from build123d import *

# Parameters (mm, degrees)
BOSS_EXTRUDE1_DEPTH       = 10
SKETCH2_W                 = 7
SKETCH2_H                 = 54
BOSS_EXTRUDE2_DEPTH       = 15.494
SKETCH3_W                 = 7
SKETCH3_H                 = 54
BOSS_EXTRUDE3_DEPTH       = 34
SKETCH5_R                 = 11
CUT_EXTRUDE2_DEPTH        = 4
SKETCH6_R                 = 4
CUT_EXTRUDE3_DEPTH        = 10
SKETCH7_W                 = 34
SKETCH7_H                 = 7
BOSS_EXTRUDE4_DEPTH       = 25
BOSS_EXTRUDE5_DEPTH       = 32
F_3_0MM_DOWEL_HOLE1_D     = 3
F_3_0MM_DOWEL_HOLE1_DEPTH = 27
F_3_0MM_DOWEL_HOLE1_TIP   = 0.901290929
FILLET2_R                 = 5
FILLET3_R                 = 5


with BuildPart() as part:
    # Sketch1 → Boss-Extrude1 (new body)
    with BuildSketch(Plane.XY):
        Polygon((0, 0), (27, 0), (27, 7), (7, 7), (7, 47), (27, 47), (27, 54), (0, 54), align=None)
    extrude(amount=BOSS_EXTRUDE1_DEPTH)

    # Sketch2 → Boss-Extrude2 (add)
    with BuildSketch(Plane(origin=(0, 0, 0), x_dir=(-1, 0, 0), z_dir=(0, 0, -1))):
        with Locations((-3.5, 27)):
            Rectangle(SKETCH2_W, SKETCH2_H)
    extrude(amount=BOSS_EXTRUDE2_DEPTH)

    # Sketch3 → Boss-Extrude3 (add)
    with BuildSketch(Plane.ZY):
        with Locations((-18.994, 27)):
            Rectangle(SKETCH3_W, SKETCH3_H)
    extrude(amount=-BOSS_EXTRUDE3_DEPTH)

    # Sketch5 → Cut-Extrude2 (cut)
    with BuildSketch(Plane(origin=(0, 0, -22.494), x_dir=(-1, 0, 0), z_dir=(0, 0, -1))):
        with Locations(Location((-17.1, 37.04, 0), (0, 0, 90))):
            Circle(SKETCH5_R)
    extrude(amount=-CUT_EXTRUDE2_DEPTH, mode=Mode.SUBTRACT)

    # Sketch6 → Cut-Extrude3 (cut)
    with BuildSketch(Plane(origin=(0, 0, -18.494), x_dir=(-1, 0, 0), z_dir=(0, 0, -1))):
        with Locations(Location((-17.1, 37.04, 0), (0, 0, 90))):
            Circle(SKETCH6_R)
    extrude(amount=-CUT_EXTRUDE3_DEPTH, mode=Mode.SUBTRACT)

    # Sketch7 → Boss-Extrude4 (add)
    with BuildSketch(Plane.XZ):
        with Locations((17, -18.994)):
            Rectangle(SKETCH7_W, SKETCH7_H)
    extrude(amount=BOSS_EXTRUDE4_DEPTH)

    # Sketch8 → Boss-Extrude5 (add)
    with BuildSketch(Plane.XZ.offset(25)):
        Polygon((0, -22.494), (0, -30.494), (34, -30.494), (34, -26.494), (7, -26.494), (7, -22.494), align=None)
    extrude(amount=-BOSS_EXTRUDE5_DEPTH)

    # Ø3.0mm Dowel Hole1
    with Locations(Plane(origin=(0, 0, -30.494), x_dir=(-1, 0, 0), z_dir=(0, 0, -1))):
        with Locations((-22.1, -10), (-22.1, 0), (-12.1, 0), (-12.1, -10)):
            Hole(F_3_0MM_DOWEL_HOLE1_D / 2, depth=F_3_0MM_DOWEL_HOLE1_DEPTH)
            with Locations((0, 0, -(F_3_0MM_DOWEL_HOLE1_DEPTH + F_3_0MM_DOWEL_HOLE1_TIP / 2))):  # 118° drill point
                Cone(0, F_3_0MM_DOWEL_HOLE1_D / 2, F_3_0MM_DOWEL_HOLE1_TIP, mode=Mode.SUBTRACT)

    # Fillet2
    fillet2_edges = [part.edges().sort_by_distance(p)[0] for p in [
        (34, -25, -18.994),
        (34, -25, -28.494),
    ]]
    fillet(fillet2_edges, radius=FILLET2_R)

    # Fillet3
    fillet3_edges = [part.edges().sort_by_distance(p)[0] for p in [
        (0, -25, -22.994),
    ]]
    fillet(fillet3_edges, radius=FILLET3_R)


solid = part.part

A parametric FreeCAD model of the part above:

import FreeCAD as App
import Part
import Sketcher

V = App.Vector


def edges_at(feature, points):
    """Names of the edges that pass closest to the given points."""
    edges = feature.Shape.Edges
    near = lambda p: min(range(len(edges)), key=lambda i: edges[i].distToShape(Part.Vertex(*p))[0])
    return sorted({f"Edge{near(p) + 1}" for p in points})


def add_polygon(sketch, points):
    """Adds a closed chain of lines whose ends are joined by coincident constraints."""
    first, n = sketch.GeometryCount, len(points)
    for a, b in zip(points, points[1:] + points[:1]):
        sketch.addGeometry(Part.LineSegment(App.Vector(*a, 0), App.Vector(*b, 0)), False)
    for i in range(n):
        sketch.addConstraint(Sketcher.Constraint("Coincident", first + i, 2, first + (i + 1) % n, 1))

doc = App.newDocument("Part")
body = doc.addObject("PartDesign::Body", "Body")

# Sketch on XY plane
sketch1 = body.newObject("Sketcher::SketchObject", "Sketch")
sketch1.AttachmentSupport = (doc.getObject("XY_Plane"), [""])
sketch1.MapMode = "FlatFace"
add_polygon(sketch1, [(0, 0), (27, 0), (27, 7), (7, 7), (7, 47), (27, 47), (27, 54), (0, 54)])  # lines 0-7
sketch1.addConstraint([
    Sketcher.Constraint("Horizontal", 0),
    Sketcher.Constraint("Vertical", 1),
    Sketcher.Constraint("Horizontal", 2),
    Sketcher.Constraint("Vertical", 3),
    Sketcher.Constraint("Horizontal", 4),
    Sketcher.Constraint("Vertical", 5),
    Sketcher.Constraint("Horizontal", 6),
    Sketcher.Constraint("Vertical", 7),
    Sketcher.Constraint("Coincident", 7, 2, -1, 1),
    Sketcher.Constraint("Vertical", 1, 2, 4, 2),
    Sketcher.Constraint("Equal", 1, 5),
    Sketcher.Constraint("DistanceX", 0, 1, 0, 2, 27.0),
    Sketcher.Constraint("DistanceX", 2, 2, 2, 1, 20.0),
    Sketcher.Constraint("DistanceY", 1, 1, 1, 2, 7.0),
    Sketcher.Constraint("DistanceY", 3, 1, 3, 2, 40.0),
])
pad1 = body.newObject("PartDesign::Pad", "Pad")
pad1.Profile = sketch1
pad1.Length = 10

# Sketch on XY plane
sketch2 = body.newObject("Sketcher::SketchObject", "Sketch001")
sketch2.AttachmentSupport = (doc.getObject("XY_Plane"), [""])
sketch2.MapMode = "FlatFace"
add_polygon(sketch2, [(7, 54), (7, 0), (0, 0), (0, 54)])  # lines 0-3
sketch2.addConstraint([
    Sketcher.Constraint("Vertical", 0),
    Sketcher.Constraint("Horizontal", 1),
    Sketcher.Constraint("Vertical", 2),
    Sketcher.Constraint("Horizontal", 3),
    Sketcher.Constraint("Coincident", 1, 2, -1, 1),
    Sketcher.Constraint("DistanceX", 1, 2, 1, 1, 7.0),
    Sketcher.Constraint("DistanceY", 0, 2, 0, 1, 54.0),
])
pad2 = body.newObject("PartDesign::Pad", "Pad001")
pad2.Profile = sketch2
pad2.Length = 15.494
pad2.Reversed = True

# Sketch on YZ plane
sketch3 = body.newObject("Sketcher::SketchObject", "Sketch002")
sketch3.AttachmentSupport = (doc.getObject("YZ_Plane"), [""])
sketch3.MapMode = "FlatFace"
add_polygon(sketch3, [(54, -22.494), (0, -22.494), (0, -15.494), (54, -15.494)])  # lines 0-3
sketch3.addConstraint([
    Sketcher.Constraint("Horizontal", 0),
    Sketcher.Constraint("Vertical", 1),
    Sketcher.Constraint("Horizontal", 2),
    Sketcher.Constraint("Vertical", 3),
    Sketcher.Constraint("PointOnObject", 0, 2, -2),
    Sketcher.Constraint("DistanceX", 0, 2, 0, 1, 54.0),
    Sketcher.Constraint("DistanceY", 1, 1, 1, 2, 7.0),
    Sketcher.Constraint("DistanceY", 0, 2, -1, 1, 22.494),
])
pad3 = body.newObject("PartDesign::Pad", "Pad002")
pad3.Profile = sketch3
pad3.Length = 34

# Sketch on XY plane
sketch4 = body.newObject("Sketcher::SketchObject", "Sketch003")
sketch4.AttachmentSupport = (doc.getObject("XY_Plane"), [""])
sketch4.MapMode = "FlatFace"
sketch4.AttachmentOffset = App.Placement(V(0, 0, -22.494), App.Rotation())
sketch4.addGeometry(Part.Circle(V(17.1, 37.04, 0), V(0, 0, 1), 11), False)
sketch4.addConstraint([
    Sketcher.Constraint("Diameter", 0, 22.0),
    Sketcher.Constraint("DistanceX", -1, 1, 0, 3, 17.1),
    Sketcher.Constraint("DistanceY", -1, 1, 0, 3, 37.04),
])
pocket1 = body.newObject("PartDesign::Pocket", "Pocket")
pocket1.Profile = sketch4
pocket1.Length = 4
pocket1.Reversed = True

# Sketch on XY plane
sketch5 = body.newObject("Sketcher::SketchObject", "Sketch004")
sketch5.AttachmentSupport = (doc.getObject("XY_Plane"), [""])
sketch5.MapMode = "FlatFace"
sketch5.AttachmentOffset = App.Placement(V(0, 0, -18.494), App.Rotation())
sketch5.addGeometry(Part.Circle(V(17.1, 37.04, 0), V(0, 0, 1), 4), False)
sketch5.addConstraint([
    Sketcher.Constraint("Diameter", 0, 8.0),
    Sketcher.Constraint("DistanceX", -1, 1, 0, 3, 17.1),
    Sketcher.Constraint("DistanceY", -1, 1, 0, 3, 37.04),
])
pocket2 = body.newObject("PartDesign::Pocket", "Pocket001")
pocket2.Profile = sketch5
pocket2.Length = 10
pocket2.Reversed = True

# Sketch on XZ plane
sketch6 = body.newObject("Sketcher::SketchObject", "Sketch005")
sketch6.AttachmentSupport = (doc.getObject("XZ_Plane"), [""])
sketch6.MapMode = "FlatFace"
add_polygon(sketch6, [(0, -15.494), (0, -22.494), (34, -22.494), (34, -15.494)])  # lines 0-3
sketch6.addConstraint([
    Sketcher.Constraint("Vertical", 0),
    Sketcher.Constraint("Horizontal", 1),
    Sketcher.Constraint("Vertical", 2),
    Sketcher.Constraint("Horizontal", 3),
    Sketcher.Constraint("PointOnObject", 0, 2, -2),
    Sketcher.Constraint("DistanceX", 1, 1, 1, 2, 34.0),
    Sketcher.Constraint("DistanceY", 0, 2, 0, 1, 7.0),
    Sketcher.Constraint("DistanceY", 0, 2, -1, 1, 22.494),
])
pad4 = body.newObject("PartDesign::Pad", "Pad003")
pad4.Profile = sketch6
pad4.Length = 25

# Sketch on XZ plane
sketch7 = body.newObject("Sketcher::SketchObject", "Sketch006")
sketch7.AttachmentSupport = (doc.getObject("XZ_Plane"), [""])
sketch7.MapMode = "FlatFace"
sketch7.AttachmentOffset = App.Placement(V(0, 0, 25), App.Rotation())
add_polygon(sketch7, [(0, -22.494), (0, -30.494), (34, -30.494), (34, -26.494), (7, -26.494), (7, -22.494)])  # lines 0-5
sketch7.addConstraint([
    Sketcher.Constraint("Vertical", 0),
    Sketcher.Constraint("Horizontal", 1),
    Sketcher.Constraint("Vertical", 2),
    Sketcher.Constraint("Horizontal", 3),
    Sketcher.Constraint("Vertical", 4),
    Sketcher.Constraint("Horizontal", 5),
    Sketcher.Constraint("PointOnObject", 0, 2, -2),
    Sketcher.Constraint("Equal", 2, 4),
    Sketcher.Constraint("DistanceX", 1, 1, 1, 2, 34.0),
    Sketcher.Constraint("DistanceX", 3, 2, 3, 1, 27.0),
    Sketcher.Constraint("DistanceY", 0, 2, 0, 1, 8.0),
    Sketcher.Constraint("DistanceY", 0, 2, -1, 1, 30.494),
])
pad5 = body.newObject("PartDesign::Pad", "Pad004")
pad5.Profile = sketch7
pad5.Length = 32
pad5.Reversed = True

# Sketch on XY plane
sketch8 = body.newObject("Sketcher::SketchObject", "Sketch007")
sketch8.AttachmentSupport = (doc.getObject("XY_Plane"), [""])
sketch8.MapMode = "FlatFace"
sketch8.AttachmentOffset = App.Placement(V(0, 0, -30.494), App.Rotation())
sketch8.addGeometry([
    Part.Circle(V(22.1, -10, 0), V(0, 0, 1), 1.5),
    Part.Circle(V(22.1, 0, 0), V(0, 0, 1), 1.5),
    Part.Circle(V(12.1, 0, 0), V(0, 0, 1), 1.5),
    Part.Circle(V(12.1, -10, 0), V(0, 0, 1), 1.5),
], False)
sketch8.addConstraint([
    Sketcher.Constraint("Equal", 0, 1),
    Sketcher.Constraint("Equal", 1, 2),
    Sketcher.Constraint("Equal", 2, 3),
    Sketcher.Constraint("PointOnObject", 1, 3, -1),
    Sketcher.Constraint("PointOnObject", 2, 3, -1),
    Sketcher.Constraint("Horizontal", 0, 3, 3, 3),
    Sketcher.Constraint("Vertical", 0, 3, 1, 3),
    Sketcher.Constraint("Vertical", 2, 3, 3, 3),
    Sketcher.Constraint("Diameter", 0, 3.0),
    Sketcher.Constraint("DistanceY", 0, 3, -1, 1, 10.0),
    Sketcher.Constraint("DistanceX", 2, 3, 1, 3, 10.0),
    Sketcher.Constraint("DistanceX", -1, 1, 0, 3, 22.1),
])
doc.recompute()
hole = body.newObject("PartDesign::Hole", "Hole")
hole.Profile = sketch8
hole.ThreadType = "None"
hole.Diameter = 3
hole.DepthType = "Dimension"
hole.Depth = 27
hole.DrillPoint = "Angled"
hole.DrillPointAngle = 118
hole.Reversed = True
doc.recompute()

fillet = body.newObject("PartDesign::Fillet", "Fillet")
fillet.Base = (hole, edges_at(hole, [(34, -25, -18.994), (34, -25, -28.494)]))
fillet.Radius = 5
doc.recompute()

fillet2 = body.newObject("PartDesign::Fillet", "Fillet001")
fillet2.Base = (fillet, edges_at(fillet, [(0, -25, -22.994)]))
fillet2.Radius = 5

doc.recompute()
